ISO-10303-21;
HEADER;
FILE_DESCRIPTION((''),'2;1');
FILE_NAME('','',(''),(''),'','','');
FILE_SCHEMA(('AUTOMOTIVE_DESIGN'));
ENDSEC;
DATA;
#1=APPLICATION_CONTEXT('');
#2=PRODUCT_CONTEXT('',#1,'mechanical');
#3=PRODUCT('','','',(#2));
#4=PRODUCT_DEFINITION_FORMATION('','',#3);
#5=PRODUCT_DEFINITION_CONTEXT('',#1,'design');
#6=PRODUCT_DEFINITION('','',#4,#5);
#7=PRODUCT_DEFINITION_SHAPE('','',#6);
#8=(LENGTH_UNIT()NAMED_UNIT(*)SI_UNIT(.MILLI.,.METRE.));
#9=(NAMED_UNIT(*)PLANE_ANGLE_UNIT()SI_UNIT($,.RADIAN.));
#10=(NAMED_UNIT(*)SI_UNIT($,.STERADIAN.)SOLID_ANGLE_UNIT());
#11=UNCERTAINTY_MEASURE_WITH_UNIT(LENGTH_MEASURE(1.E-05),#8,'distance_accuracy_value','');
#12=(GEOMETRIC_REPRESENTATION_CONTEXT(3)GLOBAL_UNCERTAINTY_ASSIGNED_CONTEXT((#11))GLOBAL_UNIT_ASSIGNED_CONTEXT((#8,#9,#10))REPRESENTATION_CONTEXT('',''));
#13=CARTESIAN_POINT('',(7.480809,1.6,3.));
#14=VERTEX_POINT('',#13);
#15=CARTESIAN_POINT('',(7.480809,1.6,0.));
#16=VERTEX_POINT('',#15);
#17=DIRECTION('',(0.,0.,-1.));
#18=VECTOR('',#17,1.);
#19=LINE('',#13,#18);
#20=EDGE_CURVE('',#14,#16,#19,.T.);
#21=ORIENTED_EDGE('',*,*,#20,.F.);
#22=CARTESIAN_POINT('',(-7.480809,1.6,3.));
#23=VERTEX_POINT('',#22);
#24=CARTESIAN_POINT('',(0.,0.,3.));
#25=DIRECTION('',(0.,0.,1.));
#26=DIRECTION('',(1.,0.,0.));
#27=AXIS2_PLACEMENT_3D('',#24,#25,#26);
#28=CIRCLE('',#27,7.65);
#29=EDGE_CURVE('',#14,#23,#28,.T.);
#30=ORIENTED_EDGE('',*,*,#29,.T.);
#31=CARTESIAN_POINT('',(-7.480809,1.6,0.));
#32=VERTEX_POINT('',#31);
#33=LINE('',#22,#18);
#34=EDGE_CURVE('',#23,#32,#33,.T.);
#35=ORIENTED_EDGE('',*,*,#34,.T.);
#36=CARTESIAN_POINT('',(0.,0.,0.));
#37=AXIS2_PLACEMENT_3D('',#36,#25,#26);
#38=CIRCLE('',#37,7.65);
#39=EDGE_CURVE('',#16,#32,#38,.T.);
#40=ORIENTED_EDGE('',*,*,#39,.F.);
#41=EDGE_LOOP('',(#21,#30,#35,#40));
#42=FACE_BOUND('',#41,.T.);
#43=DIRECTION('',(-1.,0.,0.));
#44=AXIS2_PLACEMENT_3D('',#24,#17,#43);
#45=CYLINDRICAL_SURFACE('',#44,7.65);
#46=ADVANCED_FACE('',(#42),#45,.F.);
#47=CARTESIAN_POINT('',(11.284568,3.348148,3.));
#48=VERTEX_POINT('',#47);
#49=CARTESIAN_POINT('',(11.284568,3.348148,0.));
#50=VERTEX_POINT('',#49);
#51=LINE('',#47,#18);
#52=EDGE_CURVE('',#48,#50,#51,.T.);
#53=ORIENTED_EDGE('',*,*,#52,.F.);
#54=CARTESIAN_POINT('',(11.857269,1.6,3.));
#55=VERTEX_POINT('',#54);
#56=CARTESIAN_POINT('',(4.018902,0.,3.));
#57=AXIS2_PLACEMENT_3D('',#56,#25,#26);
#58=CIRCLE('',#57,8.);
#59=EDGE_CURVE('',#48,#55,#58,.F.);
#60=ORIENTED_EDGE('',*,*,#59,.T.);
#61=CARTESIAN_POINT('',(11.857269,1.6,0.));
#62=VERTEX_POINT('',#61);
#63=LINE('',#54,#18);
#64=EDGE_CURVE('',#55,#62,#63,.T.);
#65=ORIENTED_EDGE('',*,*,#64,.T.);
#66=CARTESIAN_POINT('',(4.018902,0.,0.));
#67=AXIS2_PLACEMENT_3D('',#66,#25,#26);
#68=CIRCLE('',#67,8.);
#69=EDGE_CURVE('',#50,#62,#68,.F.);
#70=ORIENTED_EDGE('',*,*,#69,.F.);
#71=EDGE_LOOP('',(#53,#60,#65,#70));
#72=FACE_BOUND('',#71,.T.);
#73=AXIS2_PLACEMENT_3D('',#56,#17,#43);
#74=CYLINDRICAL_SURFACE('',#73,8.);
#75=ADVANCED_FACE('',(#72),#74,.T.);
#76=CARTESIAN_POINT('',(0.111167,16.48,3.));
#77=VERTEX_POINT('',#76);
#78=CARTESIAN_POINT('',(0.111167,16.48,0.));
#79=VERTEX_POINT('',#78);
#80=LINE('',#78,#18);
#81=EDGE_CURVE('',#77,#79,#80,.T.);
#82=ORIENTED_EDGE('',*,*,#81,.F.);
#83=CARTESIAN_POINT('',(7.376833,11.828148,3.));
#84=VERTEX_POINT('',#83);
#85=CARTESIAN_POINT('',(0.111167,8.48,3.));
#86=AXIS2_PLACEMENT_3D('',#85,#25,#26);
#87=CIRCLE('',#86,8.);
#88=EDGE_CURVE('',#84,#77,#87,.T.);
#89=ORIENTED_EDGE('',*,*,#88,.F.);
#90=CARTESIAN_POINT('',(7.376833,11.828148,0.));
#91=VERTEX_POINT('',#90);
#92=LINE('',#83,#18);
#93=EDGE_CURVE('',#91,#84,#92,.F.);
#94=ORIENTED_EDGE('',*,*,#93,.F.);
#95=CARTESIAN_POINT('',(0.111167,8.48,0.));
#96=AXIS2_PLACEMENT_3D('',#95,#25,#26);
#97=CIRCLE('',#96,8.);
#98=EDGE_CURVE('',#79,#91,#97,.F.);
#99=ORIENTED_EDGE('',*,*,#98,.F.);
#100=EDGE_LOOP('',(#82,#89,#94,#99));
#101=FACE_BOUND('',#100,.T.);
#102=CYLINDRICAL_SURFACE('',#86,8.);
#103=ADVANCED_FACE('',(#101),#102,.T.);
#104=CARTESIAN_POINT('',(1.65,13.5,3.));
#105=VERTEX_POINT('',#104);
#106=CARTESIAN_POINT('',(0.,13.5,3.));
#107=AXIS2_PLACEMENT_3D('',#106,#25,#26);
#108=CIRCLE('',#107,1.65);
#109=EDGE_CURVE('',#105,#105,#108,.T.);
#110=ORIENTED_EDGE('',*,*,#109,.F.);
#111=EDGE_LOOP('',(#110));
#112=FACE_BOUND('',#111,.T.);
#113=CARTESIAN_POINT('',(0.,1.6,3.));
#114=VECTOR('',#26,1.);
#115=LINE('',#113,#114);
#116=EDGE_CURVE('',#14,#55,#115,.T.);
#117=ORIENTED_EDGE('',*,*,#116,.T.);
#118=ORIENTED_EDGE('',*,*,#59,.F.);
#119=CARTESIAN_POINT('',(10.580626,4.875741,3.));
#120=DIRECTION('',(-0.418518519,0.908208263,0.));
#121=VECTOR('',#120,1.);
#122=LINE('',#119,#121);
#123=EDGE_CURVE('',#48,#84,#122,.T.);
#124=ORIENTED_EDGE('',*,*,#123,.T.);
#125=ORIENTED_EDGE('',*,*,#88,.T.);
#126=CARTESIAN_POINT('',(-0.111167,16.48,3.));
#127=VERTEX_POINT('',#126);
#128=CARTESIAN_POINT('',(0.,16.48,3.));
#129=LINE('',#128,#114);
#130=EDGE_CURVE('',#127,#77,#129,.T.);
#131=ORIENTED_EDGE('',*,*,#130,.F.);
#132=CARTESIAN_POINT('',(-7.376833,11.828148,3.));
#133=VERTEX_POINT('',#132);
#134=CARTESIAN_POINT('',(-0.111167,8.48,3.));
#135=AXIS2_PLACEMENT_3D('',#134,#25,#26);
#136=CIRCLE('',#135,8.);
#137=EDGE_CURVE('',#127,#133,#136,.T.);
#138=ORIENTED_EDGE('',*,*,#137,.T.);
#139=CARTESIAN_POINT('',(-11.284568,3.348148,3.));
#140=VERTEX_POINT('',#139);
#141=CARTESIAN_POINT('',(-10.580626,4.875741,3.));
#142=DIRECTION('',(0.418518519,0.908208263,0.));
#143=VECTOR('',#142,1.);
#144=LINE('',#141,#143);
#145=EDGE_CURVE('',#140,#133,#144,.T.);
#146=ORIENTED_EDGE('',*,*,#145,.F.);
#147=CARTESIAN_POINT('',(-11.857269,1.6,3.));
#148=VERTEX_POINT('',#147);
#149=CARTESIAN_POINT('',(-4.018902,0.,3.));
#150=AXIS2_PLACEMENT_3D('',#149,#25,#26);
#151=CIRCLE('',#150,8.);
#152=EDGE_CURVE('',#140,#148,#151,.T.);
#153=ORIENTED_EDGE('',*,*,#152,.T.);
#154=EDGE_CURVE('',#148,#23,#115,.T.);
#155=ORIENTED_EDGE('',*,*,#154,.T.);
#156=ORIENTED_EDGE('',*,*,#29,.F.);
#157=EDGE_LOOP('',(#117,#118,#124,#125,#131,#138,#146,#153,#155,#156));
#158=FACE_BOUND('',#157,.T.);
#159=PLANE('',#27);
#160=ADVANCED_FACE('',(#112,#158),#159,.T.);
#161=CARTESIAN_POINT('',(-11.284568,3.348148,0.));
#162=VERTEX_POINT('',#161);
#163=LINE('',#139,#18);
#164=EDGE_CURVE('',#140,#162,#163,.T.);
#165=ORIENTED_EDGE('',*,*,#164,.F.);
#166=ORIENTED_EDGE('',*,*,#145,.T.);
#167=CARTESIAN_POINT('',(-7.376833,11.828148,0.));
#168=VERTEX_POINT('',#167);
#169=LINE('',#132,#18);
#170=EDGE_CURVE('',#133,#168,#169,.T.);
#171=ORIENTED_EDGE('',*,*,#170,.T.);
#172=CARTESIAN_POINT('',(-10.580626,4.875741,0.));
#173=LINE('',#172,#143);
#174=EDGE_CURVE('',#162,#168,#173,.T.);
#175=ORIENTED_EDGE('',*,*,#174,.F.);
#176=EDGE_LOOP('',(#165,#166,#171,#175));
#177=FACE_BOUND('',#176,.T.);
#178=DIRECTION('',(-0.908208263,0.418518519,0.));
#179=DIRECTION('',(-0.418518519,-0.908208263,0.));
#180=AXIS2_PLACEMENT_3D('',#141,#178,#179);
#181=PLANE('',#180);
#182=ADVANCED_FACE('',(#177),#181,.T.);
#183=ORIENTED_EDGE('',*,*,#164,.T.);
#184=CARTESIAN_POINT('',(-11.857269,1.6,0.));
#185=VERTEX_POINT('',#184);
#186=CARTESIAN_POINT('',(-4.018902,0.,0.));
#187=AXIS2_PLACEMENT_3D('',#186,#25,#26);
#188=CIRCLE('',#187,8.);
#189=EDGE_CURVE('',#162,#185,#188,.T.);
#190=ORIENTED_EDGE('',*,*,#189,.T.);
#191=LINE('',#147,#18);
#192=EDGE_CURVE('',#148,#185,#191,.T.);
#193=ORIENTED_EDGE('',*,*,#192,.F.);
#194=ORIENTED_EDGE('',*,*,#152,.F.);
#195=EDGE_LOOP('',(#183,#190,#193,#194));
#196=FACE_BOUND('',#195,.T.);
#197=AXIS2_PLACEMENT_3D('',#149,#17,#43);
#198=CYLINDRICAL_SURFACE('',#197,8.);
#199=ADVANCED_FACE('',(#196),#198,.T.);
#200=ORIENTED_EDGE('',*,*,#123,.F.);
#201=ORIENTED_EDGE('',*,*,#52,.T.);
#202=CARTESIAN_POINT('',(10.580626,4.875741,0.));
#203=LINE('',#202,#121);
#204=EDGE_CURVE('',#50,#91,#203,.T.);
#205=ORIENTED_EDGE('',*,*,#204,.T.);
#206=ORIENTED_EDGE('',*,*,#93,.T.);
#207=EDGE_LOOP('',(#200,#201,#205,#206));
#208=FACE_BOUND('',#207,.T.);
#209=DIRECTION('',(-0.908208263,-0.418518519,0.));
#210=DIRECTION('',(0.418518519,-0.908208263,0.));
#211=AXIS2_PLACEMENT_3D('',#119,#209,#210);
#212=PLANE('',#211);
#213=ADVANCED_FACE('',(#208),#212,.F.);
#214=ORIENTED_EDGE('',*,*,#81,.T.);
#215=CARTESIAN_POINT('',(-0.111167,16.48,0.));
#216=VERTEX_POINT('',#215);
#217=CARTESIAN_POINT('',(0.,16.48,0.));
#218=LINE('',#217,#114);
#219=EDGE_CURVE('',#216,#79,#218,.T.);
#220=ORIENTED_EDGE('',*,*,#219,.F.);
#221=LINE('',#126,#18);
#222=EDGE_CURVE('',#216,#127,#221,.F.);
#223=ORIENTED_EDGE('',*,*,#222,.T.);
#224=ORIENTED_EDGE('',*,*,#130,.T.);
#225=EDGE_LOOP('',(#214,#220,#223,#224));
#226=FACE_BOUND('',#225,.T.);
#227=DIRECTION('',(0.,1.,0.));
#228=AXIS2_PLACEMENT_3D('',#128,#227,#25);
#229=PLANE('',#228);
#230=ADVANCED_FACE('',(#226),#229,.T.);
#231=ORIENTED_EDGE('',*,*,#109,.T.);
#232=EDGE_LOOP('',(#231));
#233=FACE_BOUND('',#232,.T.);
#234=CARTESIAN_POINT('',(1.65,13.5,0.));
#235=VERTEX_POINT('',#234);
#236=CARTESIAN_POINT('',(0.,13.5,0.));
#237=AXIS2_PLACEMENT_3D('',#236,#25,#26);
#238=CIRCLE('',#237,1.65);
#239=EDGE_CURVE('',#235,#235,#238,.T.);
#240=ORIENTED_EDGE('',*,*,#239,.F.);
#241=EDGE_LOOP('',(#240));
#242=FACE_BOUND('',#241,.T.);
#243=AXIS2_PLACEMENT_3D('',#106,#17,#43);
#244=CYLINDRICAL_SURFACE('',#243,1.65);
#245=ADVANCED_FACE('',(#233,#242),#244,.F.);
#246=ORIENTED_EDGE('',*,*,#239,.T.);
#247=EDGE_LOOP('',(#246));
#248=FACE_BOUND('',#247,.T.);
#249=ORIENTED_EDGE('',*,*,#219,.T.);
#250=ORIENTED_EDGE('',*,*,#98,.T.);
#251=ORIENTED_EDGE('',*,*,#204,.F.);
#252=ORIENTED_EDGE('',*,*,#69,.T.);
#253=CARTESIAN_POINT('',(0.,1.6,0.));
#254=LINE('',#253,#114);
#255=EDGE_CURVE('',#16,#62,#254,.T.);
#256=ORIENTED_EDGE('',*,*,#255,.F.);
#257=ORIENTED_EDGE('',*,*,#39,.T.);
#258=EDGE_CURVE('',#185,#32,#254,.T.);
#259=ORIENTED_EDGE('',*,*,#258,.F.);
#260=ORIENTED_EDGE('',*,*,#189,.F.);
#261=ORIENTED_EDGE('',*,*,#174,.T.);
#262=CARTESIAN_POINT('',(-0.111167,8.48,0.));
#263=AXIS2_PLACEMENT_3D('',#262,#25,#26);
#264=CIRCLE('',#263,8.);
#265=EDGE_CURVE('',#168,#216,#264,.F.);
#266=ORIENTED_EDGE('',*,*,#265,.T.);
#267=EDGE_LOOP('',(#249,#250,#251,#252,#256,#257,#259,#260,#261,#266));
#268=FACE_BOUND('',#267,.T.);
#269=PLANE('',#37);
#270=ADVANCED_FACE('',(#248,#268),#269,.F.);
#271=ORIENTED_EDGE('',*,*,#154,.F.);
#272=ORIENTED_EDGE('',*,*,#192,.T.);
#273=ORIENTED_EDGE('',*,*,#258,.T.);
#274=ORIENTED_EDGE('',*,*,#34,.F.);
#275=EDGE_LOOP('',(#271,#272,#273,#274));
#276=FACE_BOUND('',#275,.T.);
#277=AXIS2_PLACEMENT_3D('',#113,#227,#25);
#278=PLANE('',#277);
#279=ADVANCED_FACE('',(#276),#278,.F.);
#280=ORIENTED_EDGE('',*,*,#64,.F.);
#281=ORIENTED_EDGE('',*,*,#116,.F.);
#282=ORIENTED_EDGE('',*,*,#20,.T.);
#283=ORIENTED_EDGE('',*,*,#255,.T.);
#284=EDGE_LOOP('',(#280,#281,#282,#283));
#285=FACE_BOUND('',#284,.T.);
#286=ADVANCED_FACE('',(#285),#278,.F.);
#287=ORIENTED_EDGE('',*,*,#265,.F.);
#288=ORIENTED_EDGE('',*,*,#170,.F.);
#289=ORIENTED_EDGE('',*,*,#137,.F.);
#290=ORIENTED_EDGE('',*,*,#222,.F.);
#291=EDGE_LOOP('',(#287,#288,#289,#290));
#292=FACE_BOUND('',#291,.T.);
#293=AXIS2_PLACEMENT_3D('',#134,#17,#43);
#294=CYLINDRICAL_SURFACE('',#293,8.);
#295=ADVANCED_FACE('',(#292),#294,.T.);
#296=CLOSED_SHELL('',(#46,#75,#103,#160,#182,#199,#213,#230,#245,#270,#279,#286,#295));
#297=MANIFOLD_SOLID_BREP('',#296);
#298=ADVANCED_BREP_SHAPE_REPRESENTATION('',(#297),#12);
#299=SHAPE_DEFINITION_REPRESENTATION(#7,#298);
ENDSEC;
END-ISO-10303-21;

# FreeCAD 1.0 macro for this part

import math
import FreeCAD as App
import Part
import Sketcher


def edges_at(feature, points):
    """Names of the edges that pass closest to the given points."""
    edges = feature.Shape.Edges
    near = lambda p: min(range(len(edges)), key=lambda i: edges[i].distToShape(Part.Vertex(*p))[0])
    return sorted({f"Edge{near(p) + 1}" for p in points})

doc = App.newDocument("Part")
params = doc.addObject("Spreadsheet::Sheet", "Params")
for row, (alias, value) in enumerate([
    ("sketch1_radius", "8 mm"),
    ("sketch1_diameter", "3.3 mm"),
    ("sketch1_radius2", "7.65 mm"),
    ("pad1_length", "3 mm"),
    ("fillet_radius", "8 mm"),
], start=1):
    params.set(f"A{row}", alias)
    params.set(f"B{row}", "=" + value)
    params.setAlias(f"B{row}", alias)

body = doc.addObject("PartDesign::Body", "Body")

sketch1 = body.newObject("Sketcher::SketchObject", "Sketch")
sketch1.AttachmentSupport = (doc.getObject("XY_Plane"), [""])
sketch1.MapMode = "FlatFace"
sketch1.addGeometry(Part.LineSegment(App.Vector(-5.2, 16.5, 0), App.Vector(-11.3, 3.3, 0)), False)
sketch1.addGeometry(Part.ArcOfCircle(Part.Circle(App.Vector(-4, 0, 0), App.Vector(0, 0, 1), 8), math.radians(155.26), math.radians(168.46)), False)
sketch1.addGeometry(Part.LineSegment(App.Vector(-11.9, 1.6, 0), App.Vector(-7.5, 1.6, 0)), False)
sketch1.addGeometry(Part.ArcOfCircle(Part.Circle(App.Vector(0, 0, 0), App.Vector(0, 0, 1), 7.7), math.radians(12), math.radians(168)), False)
sketch1.addGeometry(Part.LineSegment(App.Vector(7.5, 1.6, 0), App.Vector(11.9, 1.6, 0)), False)
sketch1.addGeometry(Part.ArcOfCircle(Part.Circle(App.Vector(4, 0, 0), App.Vector(0, 0, 1), 8), math.radians(11.54), math.radians(24.74)), False)
sketch1.addGeometry(Part.LineSegment(App.Vector(11.3, 3.3, 0), App.Vector(5.2, 16.5, 0)), False)
sketch1.addGeometry(Part.LineSegment(App.Vector(5.2, 16.5, 0), App.Vector(-5.2, 16.5, 0)), False)
sketch1.addGeometry(Part.Circle(App.Vector(0, 13.5, 0), App.Vector(0, 0, 1), 1.6), False)
sketch1.addConstraint(Sketcher.Constraint("Tangent", 0, 2, 1, 1))
sketch1.addConstraint(Sketcher.Constraint("Coincident", 1, 2, 2, 1))
sketch1.addConstraint(Sketcher.Constraint("Coincident", 2, 2, 3, 2))
sketch1.addConstraint(Sketcher.Constraint("Coincident", 3, 1, 4, 1))
sketch1.addConstraint(Sketcher.Constraint("Coincident", 4, 2, 5, 1))
sketch1.addConstraint(Sketcher.Constraint("Tangent", 5, 2, 6, 1))
sketch1.addConstraint(Sketcher.Constraint("Coincident", 6, 2, 7, 1))
sketch1.addConstraint(Sketcher.Constraint("Coincident", 7, 2, 0, 1))
sketch1.addConstraint(Sketcher.Constraint("Horizontal", 2))
sketch1.addConstraint(Sketcher.Constraint("Horizontal", 4))
sketch1.addConstraint(Sketcher.Constraint("Horizontal", 7))
sketch1.addConstraint(Sketcher.Constraint("Coincident", 3, 3, -1, 1))
sketch1.addConstraint(Sketcher.Constraint("Equal", 1, 5))
sketch1.addConstraint(Sketcher.Constraint("Symmetric", 1, 3, 5, 3, -1, 1))
sketch1.addConstraint(Sketcher.Constraint("Symmetric", 1, 2, 4, 2, -2))
sketch1.addConstraint(Sketcher.Constraint("PointOnObject", 8, 3, -2))
sketch1.addConstraint(Sketcher.Constraint("Horizontal", 0, 2, 5, 2))
sketch1.addConstraint(Sketcher.Constraint("Radius", 1, 8.0))
sketch1.addConstraint(Sketcher.Constraint("Diameter", 8, 3.3))
sketch1.addConstraint(Sketcher.Constraint("Radius", 3, 7.65))
sketch1.addConstraint(Sketcher.Constraint("DistanceY", -1, 1, 8, 3, 13.5))
sketch1.addConstraint(Sketcher.Constraint("DistanceY", -1, 1, 1, 2, 1.6))
sketch1.addConstraint(Sketcher.Constraint("DistanceY", -1, 1, 6, 2, 16.48))
sketch1.addConstraint(Sketcher.Constraint("DistanceX", 2, 1, 2, 2, 4.37646))
sketch1.addConstraint(Sketcher.Constraint("DistanceX", 1, 2, 0, 2, 0.572701))
sketch1.setExpression("Constraints[17]", "Params.sketch1_radius")
sketch1.setExpression("Constraints[18]", "Params.sketch1_diameter")
sketch1.setExpression("Constraints[19]", "Params.sketch1_radius2")
pad1 = body.newObject("PartDesign::Pad", "Pad")
pad1.Profile = sketch1
pad1.setExpression("Length", "Params.pad1_length")
doc.recompute()

fillet = body.newObject("PartDesign::Fillet", "Fillet")
fillet.Base = (pad1, edges_at(pad1, [(-5.233, 16.48, 1.5), (5.233, 16.48, 1.5)]))
fillet.setExpression("Radius", "Params.fillet_radius")

doc.recompute()
